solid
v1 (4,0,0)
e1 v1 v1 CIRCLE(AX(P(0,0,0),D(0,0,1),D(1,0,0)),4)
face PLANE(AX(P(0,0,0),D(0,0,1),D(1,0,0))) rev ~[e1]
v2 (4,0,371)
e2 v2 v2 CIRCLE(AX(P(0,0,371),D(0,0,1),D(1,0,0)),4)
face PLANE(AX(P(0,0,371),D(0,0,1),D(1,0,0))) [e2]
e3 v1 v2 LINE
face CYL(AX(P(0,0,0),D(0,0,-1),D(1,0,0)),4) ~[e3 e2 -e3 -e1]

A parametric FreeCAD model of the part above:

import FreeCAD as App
import Part
import Sketcher
from FreeCAD import Vector
Q = App.Units.Quantity

doc = App.newDocument("Part")
body = doc.addObject("PartDesign::Body", "Body")

# Sketch on XY plane
sketch1 = doc.addObject("Sketcher::SketchObject", "Sketch")
body.addObject(sketch1)
sketch1.AttachmentSupport = (doc.XY_Plane, [""])
sketch1.MapMode = "FlatFace"
sketch1.addGeometry(Part.Circle(Vector(0, 0, 0), Vector(0, 0, 1), 4), False)
sketch1.addConstraint([
    Sketcher.Constraint("Coincident", 0, 3, -1, 1),
    Sketcher.Constraint("Diameter", 0, Q("8 mm")),
])
pad1 = doc.addObject("PartDesign::Pad", "Pad")
body.addObject(pad1)
pad1.Profile = sketch1
pad1.Length = 371

doc.recompute()
